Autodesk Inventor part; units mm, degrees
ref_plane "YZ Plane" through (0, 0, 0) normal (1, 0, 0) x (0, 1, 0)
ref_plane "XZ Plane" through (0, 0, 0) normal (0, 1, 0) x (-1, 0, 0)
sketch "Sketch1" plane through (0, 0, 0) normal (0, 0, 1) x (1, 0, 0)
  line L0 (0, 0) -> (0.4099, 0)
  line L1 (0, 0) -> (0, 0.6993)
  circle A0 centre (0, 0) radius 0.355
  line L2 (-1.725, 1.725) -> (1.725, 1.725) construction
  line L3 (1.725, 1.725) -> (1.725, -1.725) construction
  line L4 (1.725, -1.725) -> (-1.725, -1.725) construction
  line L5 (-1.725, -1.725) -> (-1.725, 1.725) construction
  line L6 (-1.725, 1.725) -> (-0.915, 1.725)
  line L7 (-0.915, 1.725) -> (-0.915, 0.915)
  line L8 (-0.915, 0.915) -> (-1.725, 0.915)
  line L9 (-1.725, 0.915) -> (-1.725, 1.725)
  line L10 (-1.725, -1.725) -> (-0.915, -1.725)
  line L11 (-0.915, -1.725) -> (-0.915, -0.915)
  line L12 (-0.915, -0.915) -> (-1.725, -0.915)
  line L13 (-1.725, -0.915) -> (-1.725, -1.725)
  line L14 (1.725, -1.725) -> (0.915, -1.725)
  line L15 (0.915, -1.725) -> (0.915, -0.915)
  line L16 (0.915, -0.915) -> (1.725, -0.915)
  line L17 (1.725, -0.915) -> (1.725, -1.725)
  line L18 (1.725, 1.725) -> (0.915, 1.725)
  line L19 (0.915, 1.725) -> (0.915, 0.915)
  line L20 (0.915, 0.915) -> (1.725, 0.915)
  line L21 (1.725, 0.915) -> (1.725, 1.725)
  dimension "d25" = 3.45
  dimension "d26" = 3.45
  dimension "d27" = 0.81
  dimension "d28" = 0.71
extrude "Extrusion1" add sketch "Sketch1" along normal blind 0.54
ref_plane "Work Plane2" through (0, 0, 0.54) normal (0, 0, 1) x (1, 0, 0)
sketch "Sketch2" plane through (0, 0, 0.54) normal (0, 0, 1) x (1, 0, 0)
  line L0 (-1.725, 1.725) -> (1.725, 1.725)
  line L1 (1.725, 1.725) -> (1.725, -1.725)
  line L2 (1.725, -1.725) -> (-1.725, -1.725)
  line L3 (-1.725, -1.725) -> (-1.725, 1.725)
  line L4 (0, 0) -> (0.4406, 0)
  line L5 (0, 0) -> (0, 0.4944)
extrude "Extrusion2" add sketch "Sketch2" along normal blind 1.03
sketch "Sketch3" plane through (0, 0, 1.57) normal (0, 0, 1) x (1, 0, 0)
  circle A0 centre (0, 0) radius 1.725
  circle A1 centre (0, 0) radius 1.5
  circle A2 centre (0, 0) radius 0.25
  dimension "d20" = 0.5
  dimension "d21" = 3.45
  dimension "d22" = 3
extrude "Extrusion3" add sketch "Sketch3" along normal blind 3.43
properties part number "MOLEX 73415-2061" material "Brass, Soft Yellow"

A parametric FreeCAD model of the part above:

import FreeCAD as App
import Part
import Sketcher
from FreeCAD import Vector
Q = App.Units.Quantity

doc = App.newDocument("Part")
params = doc.addObject("Spreadsheet::Sheet", "Params")
for row, (alias, value) in enumerate([
    ("sketch1_diameter", "0.71 mm"),
    ("sketch1_width", "0.81 mm"),
    ("pad1_length", "0.54 mm"),
    ("sketch2_width", "3.45 mm"),
    ("pad2_length", "1.03 mm"),
    ("sketch3_diameter", "3 mm"),
    ("sketch3_diameter2", "0.5 mm"),
    ("sketch3_diameter3", "3.45 mm"),
    ("pad3_length", "3.43 mm"),
], start=1):
    params.set(f"A{row}", alias)
    params.set(f"B{row}", "=" + value)
    params.setAlias(f"B{row}", alias)

body = doc.addObject("PartDesign::Body", "Body")
body.AllowCompound = True

# Sketch on XY plane
sketch1 = doc.addObject("Sketcher::SketchObject", "Sketch")
body.addObject(sketch1)
sketch1.AttachmentSupport = (doc.XY_Plane, [""])
sketch1.MapMode = "FlatFace"
sketch1.addGeometry([
    Part.Circle(Vector(0, 0, 0), Vector(0, 0, 1), 0.35),  # 0
    Part.LineSegment(Vector(-0.92, 1.73, 0), Vector(-1.73, 1.73, 0)),  # 1
    Part.LineSegment(Vector(-1.73, 1.73, 0), Vector(-1.73, 0.92, 0)),  # 2
    Part.LineSegment(Vector(-1.73, 0.92, 0), Vector(-0.92, 0.92, 0)),  # 3
    Part.LineSegment(Vector(-0.92, 0.92, 0), Vector(-0.92, 1.73, 0)),  # 4
    Part.LineSegment(Vector(-1.73, -0.92, 0), Vector(-1.73, -1.73, 0)),  # 5
    Part.LineSegment(Vector(-1.73, -1.73, 0), Vector(-0.92, -1.73, 0)),  # 6
    Part.LineSegment(Vector(-0.92, -1.73, 0), Vector(-0.92, -0.92, 0)),  # 7
    Part.LineSegment(Vector(-0.92, -0.92, 0), Vector(-1.73, -0.92, 0)),  # 8
    Part.LineSegment(Vector(0.92, -1.73, 0), Vector(1.73, -1.73, 0)),  # 9
    Part.LineSegment(Vector(1.73, -1.73, 0), Vector(1.73, -0.92, 0)),  # 10
    Part.LineSegment(Vector(1.73, -0.92, 0), Vector(0.92, -0.92, 0)),  # 11
    Part.LineSegment(Vector(0.92, -0.92, 0), Vector(0.92, -1.73, 0)),  # 12
    Part.LineSegment(Vector(1.73, 0.92, 0), Vector(1.73, 1.73, 0)),  # 13
    Part.LineSegment(Vector(1.73, 1.73, 0), Vector(0.92, 1.73, 0)),  # 14
    Part.LineSegment(Vector(0.92, 1.73, 0), Vector(0.92, 0.92, 0)),  # 15
    Part.LineSegment(Vector(0.92, 0.92, 0), Vector(1.73, 0.92, 0)),  # 16
], False)
sketch1.addConstraint([
    Sketcher.Constraint("Coincident", 1, 2, 2, 1),
    Sketcher.Constraint("Coincident", 2, 2, 3, 1),
    Sketcher.Constraint("Coincident", 3, 2, 4, 1),
    Sketcher.Constraint("Coincident", 4, 2, 1, 1),
    Sketcher.Constraint("Coincident", 5, 2, 6, 1),
    Sketcher.Constraint("Coincident", 6, 2, 7, 1),
    Sketcher.Constraint("Coincident", 7, 2, 8, 1),
    Sketcher.Constraint("Coincident", 8, 2, 5, 1),
    Sketcher.Constraint("Coincident", 9, 2, 10, 1),
    Sketcher.Constraint("Coincident", 10, 2, 11, 1),
    Sketcher.Constraint("Coincident", 11, 2, 12, 1),
    Sketcher.Constraint("Coincident", 12, 2, 9, 1),
    Sketcher.Constraint("Coincident", 13, 2, 14, 1),
    Sketcher.Constraint("Coincident", 14, 2, 15, 1),
    Sketcher.Constraint("Coincident", 15, 2, 16, 1),
    Sketcher.Constraint("Coincident", 16, 2, 13, 1),
    Sketcher.Constraint("Horizontal", 1),
    Sketcher.Constraint("Vertical", 2),
    Sketcher.Constraint("Horizontal", 3),
    Sketcher.Constraint("Vertical", 4),
    Sketcher.Constraint("Vertical", 5),
    Sketcher.Constraint("Horizontal", 6),
    Sketcher.Constraint("Vertical", 7),
    Sketcher.Constraint("Horizontal", 8),
    Sketcher.Constraint("Horizontal", 9),
    Sketcher.Constraint("Vertical", 10),
    Sketcher.Constraint("Horizontal", 11),
    Sketcher.Constraint("Vertical", 12),
    Sketcher.Constraint("Vertical", 13),
    Sketcher.Constraint("Horizontal", 14),
    Sketcher.Constraint("Vertical", 15),
    Sketcher.Constraint("Horizontal", 16),
    Sketcher.Constraint("Coincident", 0, 3, -1, 1),
    Sketcher.Constraint("Symmetric", 1, 2, 9, 2, -1, 1),
    Sketcher.Constraint("Symmetric", 3, 2, 11, 2, -1, 1),
    Sketcher.Constraint("Symmetric", 5, 2, 13, 2, -1, 1),
    Sketcher.Constraint("Symmetric", 7, 2, 15, 2, -1, 1),
    Sketcher.Constraint("Symmetric", 5, 2, 9, 2, -2),
    Sketcher.Constraint("Symmetric", 7, 2, 11, 2, -2),
    Sketcher.Constraint("Equal", 16, 2),
    Sketcher.Constraint("Diameter", 0, Q("0.71 mm")),
    Sketcher.Constraint("DistanceX", 1, 2, 1, 1, Q("0.81 mm")),
    Sketcher.Constraint("DistanceY", 5, 2, 1, 2, Q("3.45 mm")),
    Sketcher.Constraint("DistanceX", 5, 2, 9, 2, Q("3.45 mm")),
])
sketch1.setExpression("Constraints[40]", "Params.sketch1_diameter")
sketch1.setExpression("Constraints[41]", "Params.sketch1_width")
pad1 = doc.addObject("PartDesign::Pad", "Pad")
body.addObject(pad1)
pad1.Profile = sketch1
pad1.setExpression("Length", "Params.pad1_length")

# Sketch on XY plane
sketch2 = doc.addObject("Sketcher::SketchObject", "Sketch001")
body.addObject(sketch2)
sketch2.AttachmentSupport = (doc.XY_Plane, [""])
sketch2.MapMode = "FlatFace"
sketch2.AttachmentOffset = App.Placement(Vector(0, 0, 0.54), App.Rotation())
sketch2.addGeometry([
    Part.LineSegment(Vector(1.7, 1.7, 0), Vector(-1.7, 1.7, 0)),
    Part.LineSegment(Vector(-1.7, 1.7, 0), Vector(-1.7, -1.7, 0)),
    Part.LineSegment(Vector(-1.7, -1.7, 0), Vector(1.7, -1.7, 0)),
    Part.LineSegment(Vector(1.7, -1.7, 0), Vector(1.7, 1.7, 0)),
], False)
sketch2.addConstraint([
    Sketcher.Constraint("Coincident", 0, 2, 1, 1),
    Sketcher.Constraint("Coincident", 1, 2, 2, 1),
    Sketcher.Constraint("Coincident", 2, 2, 3, 1),
    Sketcher.Constraint("Coincident", 3, 2, 0, 1),
    Sketcher.Constraint("Horizontal", 0),
    Sketcher.Constraint("Vertical", 1),
    Sketcher.Constraint("Horizontal", 2),
    Sketcher.Constraint("Vertical", 3),
    Sketcher.Constraint("Symmetric", 0, 2, 2, 2, -1, 1),
    Sketcher.Constraint("Equal", 2, 1),
    Sketcher.Constraint("DistanceX", 0, 2, 0, 1, Q("3.45 mm")),
])
sketch2.setExpression("Constraints[10]", "Params.sketch2_width")
pad2 = doc.addObject("PartDesign::Pad", "Pad001")
body.addObject(pad2)
pad2.Profile = sketch2
pad2.setExpression("Length", "Params.pad2_length")

# Sketch on XY plane
sketch3 = doc.addObject("Sketcher::SketchObject", "Sketch002")
body.addObject(sketch3)
sketch3.AttachmentSupport = (doc.XY_Plane, [""])
sketch3.MapMode = "FlatFace"
sketch3.AttachmentOffset = App.Placement(Vector(0, 0, 1.57), App.Rotation())
sketch3.addGeometry([
    Part.Circle(Vector(0, 0, 0), Vector(0, 0, 1), 1.73),
    Part.Circle(Vector(0, 0, 0), Vector(0, 0, 1), 1.5),
    Part.Circle(Vector(0, 0, 0), Vector(0, 0, 1), 0.25),
], False)
sketch3.addConstraint([
    Sketcher.Constraint("Coincident", 0, 3, -1, 1),
    Sketcher.Constraint("Coincident", 1, 3, -1, 1),
    Sketcher.Constraint("Coincident", 2, 3, -1, 1),
    Sketcher.Constraint("Diameter", 1, Q("3 mm")),
    Sketcher.Constraint("Diameter", 2, Q("0.5 mm")),
    Sketcher.Constraint("Diameter", 0, Q("3.45 mm")),
])
sketch3.setExpression("Constraints[3]", "Params.sketch3_diameter")
sketch3.setExpression("Constraints[4]", "Params.sketch3_diameter2")
sketch3.setExpression("Constraints[5]", "Params.sketch3_diameter3")
pad3 = doc.addObject("PartDesign::Pad", "Pad002")
body.addObject(pad3)
pad3.Profile = sketch3
pad3.setExpression("Length", "Params.pad3_length")

doc.recompute()
